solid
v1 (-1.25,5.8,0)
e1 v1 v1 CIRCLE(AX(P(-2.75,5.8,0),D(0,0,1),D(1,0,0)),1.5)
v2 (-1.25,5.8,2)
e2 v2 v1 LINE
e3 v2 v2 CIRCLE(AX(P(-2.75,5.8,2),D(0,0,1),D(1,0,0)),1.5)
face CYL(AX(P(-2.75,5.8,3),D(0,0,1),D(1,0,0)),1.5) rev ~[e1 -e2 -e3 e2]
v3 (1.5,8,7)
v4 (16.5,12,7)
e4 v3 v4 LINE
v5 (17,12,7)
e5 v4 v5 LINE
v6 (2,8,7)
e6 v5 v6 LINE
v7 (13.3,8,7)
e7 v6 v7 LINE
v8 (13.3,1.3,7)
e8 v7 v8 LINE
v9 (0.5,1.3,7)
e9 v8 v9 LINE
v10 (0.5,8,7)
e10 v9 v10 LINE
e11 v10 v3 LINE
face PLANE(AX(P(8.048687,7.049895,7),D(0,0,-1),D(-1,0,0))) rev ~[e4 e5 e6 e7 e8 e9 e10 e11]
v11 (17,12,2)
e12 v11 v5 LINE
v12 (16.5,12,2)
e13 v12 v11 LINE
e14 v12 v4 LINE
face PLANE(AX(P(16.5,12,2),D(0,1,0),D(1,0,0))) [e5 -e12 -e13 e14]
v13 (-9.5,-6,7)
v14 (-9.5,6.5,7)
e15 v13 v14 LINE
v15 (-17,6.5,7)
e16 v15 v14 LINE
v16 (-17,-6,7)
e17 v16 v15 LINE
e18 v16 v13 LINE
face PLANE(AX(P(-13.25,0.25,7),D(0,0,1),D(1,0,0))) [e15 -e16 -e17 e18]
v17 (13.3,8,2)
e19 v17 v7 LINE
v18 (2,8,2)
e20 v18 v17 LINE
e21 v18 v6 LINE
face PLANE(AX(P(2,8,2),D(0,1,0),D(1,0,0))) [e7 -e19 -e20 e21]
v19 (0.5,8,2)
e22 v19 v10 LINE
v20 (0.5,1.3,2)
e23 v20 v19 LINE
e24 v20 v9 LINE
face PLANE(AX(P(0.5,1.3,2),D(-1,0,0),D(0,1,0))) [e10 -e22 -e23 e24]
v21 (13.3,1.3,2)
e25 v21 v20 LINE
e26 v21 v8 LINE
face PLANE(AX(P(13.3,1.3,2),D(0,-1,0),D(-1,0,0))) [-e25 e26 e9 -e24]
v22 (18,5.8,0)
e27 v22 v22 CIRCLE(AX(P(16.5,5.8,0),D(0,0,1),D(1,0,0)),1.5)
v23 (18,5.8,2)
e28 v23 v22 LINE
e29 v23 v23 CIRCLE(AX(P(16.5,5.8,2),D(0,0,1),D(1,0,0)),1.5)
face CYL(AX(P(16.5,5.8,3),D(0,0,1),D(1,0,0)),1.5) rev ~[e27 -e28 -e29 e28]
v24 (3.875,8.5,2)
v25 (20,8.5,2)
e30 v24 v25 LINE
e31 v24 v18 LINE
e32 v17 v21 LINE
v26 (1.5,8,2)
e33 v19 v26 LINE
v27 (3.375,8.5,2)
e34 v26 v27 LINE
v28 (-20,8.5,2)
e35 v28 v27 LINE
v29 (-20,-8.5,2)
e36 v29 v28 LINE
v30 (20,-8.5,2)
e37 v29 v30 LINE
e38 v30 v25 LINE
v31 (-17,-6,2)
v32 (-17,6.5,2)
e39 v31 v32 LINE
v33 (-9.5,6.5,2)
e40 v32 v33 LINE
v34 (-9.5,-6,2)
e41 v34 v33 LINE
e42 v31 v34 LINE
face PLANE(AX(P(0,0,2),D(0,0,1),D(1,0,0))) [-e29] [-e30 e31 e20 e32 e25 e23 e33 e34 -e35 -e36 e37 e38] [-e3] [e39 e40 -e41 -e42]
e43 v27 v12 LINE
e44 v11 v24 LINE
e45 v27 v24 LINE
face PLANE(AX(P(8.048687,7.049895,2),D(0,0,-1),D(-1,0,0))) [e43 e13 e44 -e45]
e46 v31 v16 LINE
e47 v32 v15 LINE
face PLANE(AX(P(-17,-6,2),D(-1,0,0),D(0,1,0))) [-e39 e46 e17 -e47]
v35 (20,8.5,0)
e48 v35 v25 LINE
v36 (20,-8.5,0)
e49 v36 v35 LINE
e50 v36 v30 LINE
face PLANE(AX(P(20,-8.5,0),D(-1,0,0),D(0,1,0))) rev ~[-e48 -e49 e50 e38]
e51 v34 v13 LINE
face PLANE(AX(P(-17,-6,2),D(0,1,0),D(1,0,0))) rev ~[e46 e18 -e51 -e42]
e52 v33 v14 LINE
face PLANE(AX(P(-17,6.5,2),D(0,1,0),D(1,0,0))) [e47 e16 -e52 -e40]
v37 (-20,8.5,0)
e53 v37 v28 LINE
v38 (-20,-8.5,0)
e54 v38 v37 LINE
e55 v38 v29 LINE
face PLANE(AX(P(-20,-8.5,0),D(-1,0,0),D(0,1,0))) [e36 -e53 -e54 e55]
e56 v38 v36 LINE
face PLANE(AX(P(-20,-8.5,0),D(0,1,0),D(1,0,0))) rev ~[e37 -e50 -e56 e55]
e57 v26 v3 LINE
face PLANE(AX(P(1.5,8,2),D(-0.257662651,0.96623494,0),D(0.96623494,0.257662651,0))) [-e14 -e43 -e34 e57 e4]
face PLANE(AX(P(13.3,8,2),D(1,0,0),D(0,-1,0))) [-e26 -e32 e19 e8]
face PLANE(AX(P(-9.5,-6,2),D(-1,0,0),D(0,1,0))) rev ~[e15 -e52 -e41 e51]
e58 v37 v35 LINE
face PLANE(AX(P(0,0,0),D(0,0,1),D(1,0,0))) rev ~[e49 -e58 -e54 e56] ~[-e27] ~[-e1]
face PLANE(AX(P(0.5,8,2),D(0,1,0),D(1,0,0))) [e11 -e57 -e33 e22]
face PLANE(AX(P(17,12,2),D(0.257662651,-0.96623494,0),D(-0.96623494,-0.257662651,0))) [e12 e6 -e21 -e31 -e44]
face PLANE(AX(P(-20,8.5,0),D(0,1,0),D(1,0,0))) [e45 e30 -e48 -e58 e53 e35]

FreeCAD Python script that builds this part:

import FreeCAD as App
import Part
import Sketcher

V = App.Vector
Q = App.Units.Quantity

doc = App.newDocument("Part")
params = doc.addObject("Spreadsheet::Sheet", "Params")
for row, (alias, value) in enumerate([
    ("sketch1_width", "40 mm"),
    ("sketch1_height", "17 mm"),
    ("pad1_length", "2 mm"),
    ("sketch2_width", "1 mm"),
    ("sketch2_width2", "11.3 mm"),
    ("sketch2_width3", "0.5 mm"),
    ("sketch2_width4", "7.5 mm"),
    ("sketch2_height", "6.7 mm"),
    ("pad2_length", "5 mm"),
    ("sketch3_diameter", "3 mm"),
    ("pocket1_length", "5 mm"),
], start=1):
    params.set(f"A{row}", alias)
    params.set(f"B{row}", "=" + value)
    params.setAlias(f"B{row}", alias)

body = doc.addObject("PartDesign::Body", "Body")

# Sketch on XY plane
sketch1 = body.newObject("Sketcher::SketchObject", "Sketch")
sketch1.AttachmentSupport = (doc.getObject("XY_Plane"), [""])
sketch1.MapMode = "FlatFace"
sketch1.addGeometry([
    Part.LineSegment(V(-20, 8, 0), V(-20, -8, 0)),
    Part.LineSegment(V(-20, -8, 0), V(20, -8, 0)),
    Part.LineSegment(V(20, -8, 0), V(20, 8, 0)),
    Part.LineSegment(V(20, 8, 0), V(-20, 8, 0)),
], False)
sketch1.addConstraint([
    Sketcher.Constraint("Coincident", 0, 2, 1, 1),
    Sketcher.Constraint("Coincident", 1, 2, 2, 1),
    Sketcher.Constraint("Coincident", 2, 2, 3, 1),
    Sketcher.Constraint("Coincident", 3, 2, 0, 1),
    Sketcher.Constraint("Vertical", 0),
    Sketcher.Constraint("Horizontal", 1),
    Sketcher.Constraint("Vertical", 2),
    Sketcher.Constraint("Horizontal", 3),
    Sketcher.Constraint("Symmetric", 0, 2, 2, 2, -1, 1),
    Sketcher.Constraint("DistanceX", 1, 1, 1, 2, Q("40 mm")),
    Sketcher.Constraint("DistanceY", 0, 2, 0, 1, Q("17 mm")),
])
sketch1.setExpression("Constraints[9]", "Params.sketch1_width")
sketch1.setExpression("Constraints[10]", "Params.sketch1_height")
pad1 = body.newObject("PartDesign::Pad", "Pad")
pad1.Profile = sketch1
pad1.setExpression("Length", "Params.pad1_length")

# Sketch on XY plane
sketch2 = body.newObject("Sketcher::SketchObject", "Sketch001")
sketch2.AttachmentSupport = (doc.getObject("XY_Plane"), [""])
sketch2.MapMode = "FlatFace"
sketch2.AttachmentOffset = App.Placement(V(0, 0, 2), App.Rotation())
sketch2.addGeometry([
    Part.LineSegment(V(13.3, 1.3, 0), V(13.3, 8, 0)),  # 0
    Part.LineSegment(V(13.3, 8, 0), V(2, 8, 0)),  # 1
    Part.LineSegment(V(2, 8, 0), V(17, 12, 0)),  # 2
    Part.LineSegment(V(17, 12, 0), V(16.5, 12, 0)),  # 3
    Part.LineSegment(V(16.5, 12, 0), V(1.5, 8, 0)),  # 4
    Part.LineSegment(V(1.5, 8, 0), V(0.5, 8, 0)),  # 5
    Part.LineSegment(V(0.5, 8, 0), V(0.5, 1.3, 0)),  # 6
    Part.LineSegment(V(0.5, 1.3, 0), V(13.3, 1.3, 0)),  # 7
    Part.LineSegment(V(-17, 6.5, 0), V(-17, -6, 0)),  # 8
    Part.LineSegment(V(-17, -6, 0), V(-9.5, -6, 0)),  # 9
    Part.LineSegment(V(-9.5, -6, 0), V(-9.5, 6.5, 0)),  # 10
    Part.LineSegment(V(-9.5, 6.5, 0), V(-17, 6.5, 0)),  # 11
], False)
sketch2.addConstraint([
    Sketcher.Constraint("Coincident", 0, 2, 1, 1),
    Sketcher.Constraint("Coincident", 1, 2, 2, 1),
    Sketcher.Constraint("Coincident", 2, 2, 3, 1),
    Sketcher.Constraint("Coincident", 3, 2, 4, 1),
    Sketcher.Constraint("Coincident", 4, 2, 5, 1),
    Sketcher.Constraint("Coincident", 5, 2, 6, 1),
    Sketcher.Constraint("Coincident", 6, 2, 7, 1),
    Sketcher.Constraint("Coincident", 7, 2, 0, 1),
    Sketcher.Constraint("Coincident", 8, 2, 9, 1),
    Sketcher.Constraint("Coincident", 9, 2, 10, 1),
    Sketcher.Constraint("Coincident", 10, 2, 11, 1),
    Sketcher.Constraint("Coincident", 11, 2, 8, 1),
    Sketcher.Constraint("Vertical", 0),
    Sketcher.Constraint("Horizontal", 1),
    Sketcher.Constraint("Horizontal", 3),
    Sketcher.Constraint("Horizontal", 5),
    Sketcher.Constraint("Vertical", 6),
    Sketcher.Constraint("Horizontal", 7),
    Sketcher.Constraint("Vertical", 8),
    Sketcher.Constraint("Horizontal", 9),
    Sketcher.Constraint("Vertical", 10),
    Sketcher.Constraint("Horizontal", 11),
    Sketcher.Constraint("Parallel", 2, 4),
    Sketcher.Constraint("Horizontal", 1, 2, 4, 2),
    Sketcher.Constraint("DistanceX", 5, 2, 5, 1, Q("1 mm")),
    Sketcher.Constraint("DistanceX", 1, 2, 1, 1, Q("11.3 mm")),
    Sketcher.Constraint("DistanceX", 3, 2, 3, 1, Q("0.5 mm")),
    Sketcher.Constraint("DistanceX", 9, 1, 9, 2, Q("7.5 mm")),
    Sketcher.Constraint("DistanceY", 0, 1, 0, 2, Q("6.7 mm")),
    Sketcher.Constraint("DistanceY", 8, 2, 8, 1, Q("12.5 mm")),
    Sketcher.Constraint("DistanceY", -1, 1, 0, 2, Q("8 mm")),
    Sketcher.Constraint("DistanceX", -1, 1, 1, 2, Q("2 mm")),
    Sketcher.Constraint("DistanceX", -1, 1, 2, 2, Q("17 mm")),
    Sketcher.Constraint("DistanceY", -1, 1, 2, 2, Q("12 mm")),
    Sketcher.Constraint("DistanceX", 8, 2, -1, 1, Q("17 mm")),
    Sketcher.Constraint("DistanceY", 8, 2, -1, 1, Q("6 mm")),
])
sketch2.setExpression("Constraints[24]", "Params.sketch2_width")
sketch2.setExpression("Constraints[25]", "Params.sketch2_width2")
sketch2.setExpression("Constraints[26]", "Params.sketch2_width3")
sketch2.setExpression("Constraints[27]", "Params.sketch2_width4")
sketch2.setExpression("Constraints[28]", "Params.sketch2_height")
pad2 = body.newObject("PartDesign::Pad", "Pad001")
pad2.Profile = sketch2
pad2.setExpression("Length", "Params.pad2_length")

# Sketch on XY plane
sketch3 = body.newObject("Sketcher::SketchObject", "Sketch002")
sketch3.AttachmentSupport = (doc.getObject("XY_Plane"), [""])
sketch3.MapMode = "FlatFace"
sketch3.AttachmentOffset = App.Placement(V(0, 0, 3), App.Rotation())
sketch3.addGeometry([
    Part.Circle(V(16.5, 5.8, 0), V(0, 0, 1), 1.5),
    Part.Circle(V(-2.8, 5.8, 0), V(0, 0, 1), 1.5),
], False)
sketch3.addConstraint([
    Sketcher.Constraint("Equal", 0, 1),
    Sketcher.Constraint("Horizontal", 0, 3, 1, 3),
    Sketcher.Constraint("Diameter", 0, Q("3 mm")),
    Sketcher.Constraint("DistanceX", -1, 1, 0, 3, Q("16.5 mm")),
    Sketcher.Constraint("DistanceY", -1, 1, 0, 3, Q("5.8 mm")),
    Sketcher.Constraint("DistanceX", 1, 3, -1, 1, Q("2.75 mm")),
])
sketch3.setExpression("Constraints[2]", "Params.sketch3_diameter")
pocket1 = body.newObject("PartDesign::Pocket", "Pocket")
pocket1.Profile = sketch3
pocket1.setExpression("Length", "Params.pocket1_length")

doc.recompute()
